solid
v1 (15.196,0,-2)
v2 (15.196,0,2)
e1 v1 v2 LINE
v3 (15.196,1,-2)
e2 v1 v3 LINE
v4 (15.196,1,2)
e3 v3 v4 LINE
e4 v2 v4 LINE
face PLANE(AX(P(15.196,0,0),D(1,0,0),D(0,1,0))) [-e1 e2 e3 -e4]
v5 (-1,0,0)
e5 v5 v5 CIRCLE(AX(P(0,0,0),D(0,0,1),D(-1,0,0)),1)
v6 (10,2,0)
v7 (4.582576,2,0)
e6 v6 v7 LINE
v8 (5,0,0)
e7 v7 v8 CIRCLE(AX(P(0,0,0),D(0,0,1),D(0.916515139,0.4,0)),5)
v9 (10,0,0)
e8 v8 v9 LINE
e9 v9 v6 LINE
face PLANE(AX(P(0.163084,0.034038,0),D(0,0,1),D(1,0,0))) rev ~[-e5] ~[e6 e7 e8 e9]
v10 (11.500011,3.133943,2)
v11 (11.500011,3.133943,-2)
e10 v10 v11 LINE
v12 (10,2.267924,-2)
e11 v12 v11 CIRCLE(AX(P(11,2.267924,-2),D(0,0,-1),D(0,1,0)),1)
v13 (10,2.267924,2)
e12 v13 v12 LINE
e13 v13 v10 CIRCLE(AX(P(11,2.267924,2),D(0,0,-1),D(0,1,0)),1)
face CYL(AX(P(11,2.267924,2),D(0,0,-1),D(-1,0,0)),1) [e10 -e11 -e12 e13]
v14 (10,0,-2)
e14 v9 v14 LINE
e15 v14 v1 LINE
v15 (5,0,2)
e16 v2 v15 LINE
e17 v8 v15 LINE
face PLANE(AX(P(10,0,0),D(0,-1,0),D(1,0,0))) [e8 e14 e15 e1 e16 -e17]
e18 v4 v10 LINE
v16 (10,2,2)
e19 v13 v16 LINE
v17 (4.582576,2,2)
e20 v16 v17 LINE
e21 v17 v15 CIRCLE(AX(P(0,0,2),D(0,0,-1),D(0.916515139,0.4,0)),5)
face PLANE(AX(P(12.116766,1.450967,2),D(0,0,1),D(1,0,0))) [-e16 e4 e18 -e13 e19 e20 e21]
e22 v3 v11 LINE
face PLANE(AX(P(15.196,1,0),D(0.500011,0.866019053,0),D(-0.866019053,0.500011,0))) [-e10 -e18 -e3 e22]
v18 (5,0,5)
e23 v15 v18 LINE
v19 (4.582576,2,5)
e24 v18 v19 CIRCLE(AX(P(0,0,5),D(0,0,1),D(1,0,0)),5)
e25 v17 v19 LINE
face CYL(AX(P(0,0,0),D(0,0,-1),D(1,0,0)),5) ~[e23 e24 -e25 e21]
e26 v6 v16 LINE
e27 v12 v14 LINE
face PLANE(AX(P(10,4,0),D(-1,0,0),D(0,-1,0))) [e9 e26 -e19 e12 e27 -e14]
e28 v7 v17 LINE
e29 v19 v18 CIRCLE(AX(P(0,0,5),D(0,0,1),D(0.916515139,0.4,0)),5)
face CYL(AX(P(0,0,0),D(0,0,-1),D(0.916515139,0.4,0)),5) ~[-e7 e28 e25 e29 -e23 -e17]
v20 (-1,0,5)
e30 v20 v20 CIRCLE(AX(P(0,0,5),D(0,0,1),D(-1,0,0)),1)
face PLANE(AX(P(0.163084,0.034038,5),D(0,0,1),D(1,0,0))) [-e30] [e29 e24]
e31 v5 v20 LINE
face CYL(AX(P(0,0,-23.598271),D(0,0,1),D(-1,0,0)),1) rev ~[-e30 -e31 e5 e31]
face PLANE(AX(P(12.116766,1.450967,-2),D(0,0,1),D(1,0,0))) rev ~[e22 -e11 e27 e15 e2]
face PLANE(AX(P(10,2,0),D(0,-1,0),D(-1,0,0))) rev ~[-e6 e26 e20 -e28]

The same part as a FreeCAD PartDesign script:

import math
import FreeCAD as App
import Part
import Sketcher


def edges_at(feature, points):
    """Names of the edges that pass closest to the given points."""
    edges = feature.Shape.Edges
    near = lambda p: min(range(len(edges)), key=lambda i: edges[i].distToShape(Part.Vertex(*p))[0])
    return sorted({f"Edge{near(p) + 1}" for p in points})


def add_polygon(sketch, points):
    """Adds a closed chain of lines whose ends are joined by coincident constraints."""
    first, n = sketch.GeometryCount, len(points)
    for a, b in zip(points, points[1:] + points[:1]):
        sketch.addGeometry(Part.LineSegment(App.Vector(*a, 0), App.Vector(*b, 0)), False)
    for i in range(n):
        sketch.addConstraint(Sketcher.Constraint("Coincident", first + i, 2, first + (i + 1) % n, 1))

doc = App.newDocument("Part")
params = doc.addObject("Spreadsheet::Sheet", "Params")
for row, (alias, value) in enumerate([
    ("sketch1_radius", "5 mm"),
    ("sketch1_width", "5 mm"),
    ("sketch1_height", "2 mm"),
    ("pad1_length", "2 mm"),
    ("sketch2_radius", "5 mm"),
    ("pad2_length", "5 mm"),
    ("sketch3_height", "1 mm"),
    ("sketch3_height2", "4 mm"),
    ("pad3_length", "4 mm"),
    ("fillet_radius", "1 mm"),
    ("sketch4_diameter", "2 mm"),
    ("hole_diameter", "2 mm"),
], start=1):
    params.set(f"A{row}", alias)
    params.set(f"B{row}", "=" + value)
    params.setAlias(f"B{row}", alias)

body = doc.addObject("PartDesign::Body", "Body")

# Sketch on XY plane
sketch1 = body.newObject("Sketcher::SketchObject", "Sketch")
sketch1.AttachmentSupport = (doc.getObject("XY_Plane"), [""])
sketch1.MapMode = "FlatFace"
sketch1.addGeometry(Part.ArcOfCircle(Part.Circle(App.Vector(0, 0, 0), App.Vector(0, 0, 1), 5), math.radians(0), math.radians(24)), False)
sketch1.addGeometry(Part.LineSegment(App.Vector(5, 0, 0), App.Vector(10, 0, 0)), False)
sketch1.addGeometry(Part.LineSegment(App.Vector(10, 0, 0), App.Vector(10, 2, 0)), False)
sketch1.addGeometry(Part.LineSegment(App.Vector(10, 2, 0), App.Vector(4.6, 2, 0)), False)
sketch1.addConstraint(Sketcher.Constraint("Coincident", 0, 1, 1, 1))
sketch1.addConstraint(Sketcher.Constraint("Coincident", 1, 2, 2, 1))
sketch1.addConstraint(Sketcher.Constraint("Coincident", 2, 2, 3, 1))
sketch1.addConstraint(Sketcher.Constraint("Coincident", 3, 2, 0, 2))
sketch1.addConstraint(Sketcher.Constraint("Horizontal", 1))
sketch1.addConstraint(Sketcher.Constraint("Vertical", 2))
sketch1.addConstraint(Sketcher.Constraint("Horizontal", 3))
sketch1.addConstraint(Sketcher.Constraint("Coincident", 0, 3, -1, 1))
sketch1.addConstraint(Sketcher.Constraint("PointOnObject", 0, 1, -1))
sketch1.addConstraint(Sketcher.Constraint("Radius", 0, 5.0))
sketch1.addConstraint(Sketcher.Constraint("DistanceX", 1, 1, 1, 2, 5.0))
sketch1.addConstraint(Sketcher.Constraint("DistanceY", 2, 1, 2, 2, 2.0))
sketch1.setExpression("Constraints[9]", "Params.sketch1_radius")
sketch1.setExpression("Constraints[10]", "Params.sketch1_width")
sketch1.setExpression("Constraints[11]", "Params.sketch1_height")
pad1 = body.newObject("PartDesign::Pad", "Pad")
pad1.Profile = sketch1
pad1.setExpression("Length", "Params.pad1_length")

# Sketch on XY plane
sketch2 = body.newObject("Sketcher::SketchObject", "Sketch001")
sketch2.AttachmentSupport = (doc.getObject("XY_Plane"), [""])
sketch2.MapMode = "FlatFace"
sketch2.addGeometry(Part.ArcOfCircle(Part.Circle(App.Vector(0, 0, 0), App.Vector(0, 0, 1), 5), math.radians(24), math.radians(360)), False)
sketch2.addGeometry(Part.ArcOfCircle(Part.Circle(App.Vector(0, 0, 0), App.Vector(0, 0, 1), 5), math.radians(0), math.radians(24)), False)
sketch2.addConstraint(Sketcher.Constraint("Tangent", 0, 1, 1, 2))
sketch2.addConstraint(Sketcher.Constraint("Coincident", 1, 1, 0, 2))
sketch2.addConstraint(Sketcher.Constraint("Coincident", 0, 3, -1, 1))
sketch2.addConstraint(Sketcher.Constraint("PointOnObject", 1, 1, -1))
sketch2.addConstraint(Sketcher.Constraint("Radius", 0, 5.0))
sketch2.addConstraint(Sketcher.Constraint("DistanceY", -1, 1, 0, 1, 2.0))
sketch2.setExpression("Constraints[4]", "Params.sketch2_radius")
pad2 = body.newObject("PartDesign::Pad", "Pad001")
pad2.Profile = sketch2
pad2.setExpression("Length", "Params.pad2_length")

# Sketch on XY plane
sketch3 = body.newObject("Sketcher::SketchObject", "Sketch002")
sketch3.AttachmentSupport = (doc.getObject("XY_Plane"), [""])
sketch3.MapMode = "FlatFace"
add_polygon(sketch3, [(10, 0), (15.2, 0), (15.2, 1), (10, 4)])  # lines 0-3
sketch3.addConstraint(Sketcher.Constraint("Horizontal", 0))
sketch3.addConstraint(Sketcher.Constraint("Vertical", 1))
sketch3.addConstraint(Sketcher.Constraint("Vertical", 3))
sketch3.addConstraint(Sketcher.Constraint("PointOnObject", 0, 2, -1))
sketch3.addConstraint(Sketcher.Constraint("DistanceY", 1, 1, 1, 2, 1.0))
sketch3.addConstraint(Sketcher.Constraint("DistanceY", 3, 2, 3, 1, 4.0))
sketch3.addConstraint(Sketcher.Constraint("DistanceX", -1, 1, 2, 2, 10.0))
sketch3.addConstraint(Sketcher.Constraint("DistanceX", 0, 1, 0, 2, 5.196))
sketch3.setExpression("Constraints[8]", "Params.sketch3_height")
sketch3.setExpression("Constraints[9]", "Params.sketch3_height2")
pad3 = body.newObject("PartDesign::Pad", "Pad002")
pad3.Profile = sketch3
pad3.setExpression("Length", "Params.pad3_length")
pad3.Midplane = True
doc.recompute()

fillet = body.newObject("PartDesign::Fillet", "Fillet")
fillet.Base = (pad3, edges_at(pad3, [(10, 4, 0)]))
fillet.setExpression("Radius", "Params.fillet_radius")

# Sketch on XY plane
sketch4 = body.newObject("Sketcher::SketchObject", "Sketch003")
sketch4.AttachmentSupport = (doc.getObject("XY_Plane"), [""])
sketch4.MapMode = "FlatFace"
sketch4.addGeometry(Part.Circle(App.Vector(0, 0, 0), App.Vector(0, 0, 1), 1), False)
sketch4.addConstraint(Sketcher.Constraint("Coincident", 0, 3, -1, 1))
sketch4.addConstraint(Sketcher.Constraint("Diameter", 0, 2.0))
sketch4.setExpression("Constraints[1]", "Params.sketch4_diameter")
doc.recompute()
hole = body.newObject("PartDesign::Hole", "Hole")
hole.Profile = sketch4
hole.ThreadType = "None"
hole.setExpression("Diameter", "Params.hole_diameter")
hole.DepthType = "ThroughAll"
hole.Reversed = True

doc.recompute()
